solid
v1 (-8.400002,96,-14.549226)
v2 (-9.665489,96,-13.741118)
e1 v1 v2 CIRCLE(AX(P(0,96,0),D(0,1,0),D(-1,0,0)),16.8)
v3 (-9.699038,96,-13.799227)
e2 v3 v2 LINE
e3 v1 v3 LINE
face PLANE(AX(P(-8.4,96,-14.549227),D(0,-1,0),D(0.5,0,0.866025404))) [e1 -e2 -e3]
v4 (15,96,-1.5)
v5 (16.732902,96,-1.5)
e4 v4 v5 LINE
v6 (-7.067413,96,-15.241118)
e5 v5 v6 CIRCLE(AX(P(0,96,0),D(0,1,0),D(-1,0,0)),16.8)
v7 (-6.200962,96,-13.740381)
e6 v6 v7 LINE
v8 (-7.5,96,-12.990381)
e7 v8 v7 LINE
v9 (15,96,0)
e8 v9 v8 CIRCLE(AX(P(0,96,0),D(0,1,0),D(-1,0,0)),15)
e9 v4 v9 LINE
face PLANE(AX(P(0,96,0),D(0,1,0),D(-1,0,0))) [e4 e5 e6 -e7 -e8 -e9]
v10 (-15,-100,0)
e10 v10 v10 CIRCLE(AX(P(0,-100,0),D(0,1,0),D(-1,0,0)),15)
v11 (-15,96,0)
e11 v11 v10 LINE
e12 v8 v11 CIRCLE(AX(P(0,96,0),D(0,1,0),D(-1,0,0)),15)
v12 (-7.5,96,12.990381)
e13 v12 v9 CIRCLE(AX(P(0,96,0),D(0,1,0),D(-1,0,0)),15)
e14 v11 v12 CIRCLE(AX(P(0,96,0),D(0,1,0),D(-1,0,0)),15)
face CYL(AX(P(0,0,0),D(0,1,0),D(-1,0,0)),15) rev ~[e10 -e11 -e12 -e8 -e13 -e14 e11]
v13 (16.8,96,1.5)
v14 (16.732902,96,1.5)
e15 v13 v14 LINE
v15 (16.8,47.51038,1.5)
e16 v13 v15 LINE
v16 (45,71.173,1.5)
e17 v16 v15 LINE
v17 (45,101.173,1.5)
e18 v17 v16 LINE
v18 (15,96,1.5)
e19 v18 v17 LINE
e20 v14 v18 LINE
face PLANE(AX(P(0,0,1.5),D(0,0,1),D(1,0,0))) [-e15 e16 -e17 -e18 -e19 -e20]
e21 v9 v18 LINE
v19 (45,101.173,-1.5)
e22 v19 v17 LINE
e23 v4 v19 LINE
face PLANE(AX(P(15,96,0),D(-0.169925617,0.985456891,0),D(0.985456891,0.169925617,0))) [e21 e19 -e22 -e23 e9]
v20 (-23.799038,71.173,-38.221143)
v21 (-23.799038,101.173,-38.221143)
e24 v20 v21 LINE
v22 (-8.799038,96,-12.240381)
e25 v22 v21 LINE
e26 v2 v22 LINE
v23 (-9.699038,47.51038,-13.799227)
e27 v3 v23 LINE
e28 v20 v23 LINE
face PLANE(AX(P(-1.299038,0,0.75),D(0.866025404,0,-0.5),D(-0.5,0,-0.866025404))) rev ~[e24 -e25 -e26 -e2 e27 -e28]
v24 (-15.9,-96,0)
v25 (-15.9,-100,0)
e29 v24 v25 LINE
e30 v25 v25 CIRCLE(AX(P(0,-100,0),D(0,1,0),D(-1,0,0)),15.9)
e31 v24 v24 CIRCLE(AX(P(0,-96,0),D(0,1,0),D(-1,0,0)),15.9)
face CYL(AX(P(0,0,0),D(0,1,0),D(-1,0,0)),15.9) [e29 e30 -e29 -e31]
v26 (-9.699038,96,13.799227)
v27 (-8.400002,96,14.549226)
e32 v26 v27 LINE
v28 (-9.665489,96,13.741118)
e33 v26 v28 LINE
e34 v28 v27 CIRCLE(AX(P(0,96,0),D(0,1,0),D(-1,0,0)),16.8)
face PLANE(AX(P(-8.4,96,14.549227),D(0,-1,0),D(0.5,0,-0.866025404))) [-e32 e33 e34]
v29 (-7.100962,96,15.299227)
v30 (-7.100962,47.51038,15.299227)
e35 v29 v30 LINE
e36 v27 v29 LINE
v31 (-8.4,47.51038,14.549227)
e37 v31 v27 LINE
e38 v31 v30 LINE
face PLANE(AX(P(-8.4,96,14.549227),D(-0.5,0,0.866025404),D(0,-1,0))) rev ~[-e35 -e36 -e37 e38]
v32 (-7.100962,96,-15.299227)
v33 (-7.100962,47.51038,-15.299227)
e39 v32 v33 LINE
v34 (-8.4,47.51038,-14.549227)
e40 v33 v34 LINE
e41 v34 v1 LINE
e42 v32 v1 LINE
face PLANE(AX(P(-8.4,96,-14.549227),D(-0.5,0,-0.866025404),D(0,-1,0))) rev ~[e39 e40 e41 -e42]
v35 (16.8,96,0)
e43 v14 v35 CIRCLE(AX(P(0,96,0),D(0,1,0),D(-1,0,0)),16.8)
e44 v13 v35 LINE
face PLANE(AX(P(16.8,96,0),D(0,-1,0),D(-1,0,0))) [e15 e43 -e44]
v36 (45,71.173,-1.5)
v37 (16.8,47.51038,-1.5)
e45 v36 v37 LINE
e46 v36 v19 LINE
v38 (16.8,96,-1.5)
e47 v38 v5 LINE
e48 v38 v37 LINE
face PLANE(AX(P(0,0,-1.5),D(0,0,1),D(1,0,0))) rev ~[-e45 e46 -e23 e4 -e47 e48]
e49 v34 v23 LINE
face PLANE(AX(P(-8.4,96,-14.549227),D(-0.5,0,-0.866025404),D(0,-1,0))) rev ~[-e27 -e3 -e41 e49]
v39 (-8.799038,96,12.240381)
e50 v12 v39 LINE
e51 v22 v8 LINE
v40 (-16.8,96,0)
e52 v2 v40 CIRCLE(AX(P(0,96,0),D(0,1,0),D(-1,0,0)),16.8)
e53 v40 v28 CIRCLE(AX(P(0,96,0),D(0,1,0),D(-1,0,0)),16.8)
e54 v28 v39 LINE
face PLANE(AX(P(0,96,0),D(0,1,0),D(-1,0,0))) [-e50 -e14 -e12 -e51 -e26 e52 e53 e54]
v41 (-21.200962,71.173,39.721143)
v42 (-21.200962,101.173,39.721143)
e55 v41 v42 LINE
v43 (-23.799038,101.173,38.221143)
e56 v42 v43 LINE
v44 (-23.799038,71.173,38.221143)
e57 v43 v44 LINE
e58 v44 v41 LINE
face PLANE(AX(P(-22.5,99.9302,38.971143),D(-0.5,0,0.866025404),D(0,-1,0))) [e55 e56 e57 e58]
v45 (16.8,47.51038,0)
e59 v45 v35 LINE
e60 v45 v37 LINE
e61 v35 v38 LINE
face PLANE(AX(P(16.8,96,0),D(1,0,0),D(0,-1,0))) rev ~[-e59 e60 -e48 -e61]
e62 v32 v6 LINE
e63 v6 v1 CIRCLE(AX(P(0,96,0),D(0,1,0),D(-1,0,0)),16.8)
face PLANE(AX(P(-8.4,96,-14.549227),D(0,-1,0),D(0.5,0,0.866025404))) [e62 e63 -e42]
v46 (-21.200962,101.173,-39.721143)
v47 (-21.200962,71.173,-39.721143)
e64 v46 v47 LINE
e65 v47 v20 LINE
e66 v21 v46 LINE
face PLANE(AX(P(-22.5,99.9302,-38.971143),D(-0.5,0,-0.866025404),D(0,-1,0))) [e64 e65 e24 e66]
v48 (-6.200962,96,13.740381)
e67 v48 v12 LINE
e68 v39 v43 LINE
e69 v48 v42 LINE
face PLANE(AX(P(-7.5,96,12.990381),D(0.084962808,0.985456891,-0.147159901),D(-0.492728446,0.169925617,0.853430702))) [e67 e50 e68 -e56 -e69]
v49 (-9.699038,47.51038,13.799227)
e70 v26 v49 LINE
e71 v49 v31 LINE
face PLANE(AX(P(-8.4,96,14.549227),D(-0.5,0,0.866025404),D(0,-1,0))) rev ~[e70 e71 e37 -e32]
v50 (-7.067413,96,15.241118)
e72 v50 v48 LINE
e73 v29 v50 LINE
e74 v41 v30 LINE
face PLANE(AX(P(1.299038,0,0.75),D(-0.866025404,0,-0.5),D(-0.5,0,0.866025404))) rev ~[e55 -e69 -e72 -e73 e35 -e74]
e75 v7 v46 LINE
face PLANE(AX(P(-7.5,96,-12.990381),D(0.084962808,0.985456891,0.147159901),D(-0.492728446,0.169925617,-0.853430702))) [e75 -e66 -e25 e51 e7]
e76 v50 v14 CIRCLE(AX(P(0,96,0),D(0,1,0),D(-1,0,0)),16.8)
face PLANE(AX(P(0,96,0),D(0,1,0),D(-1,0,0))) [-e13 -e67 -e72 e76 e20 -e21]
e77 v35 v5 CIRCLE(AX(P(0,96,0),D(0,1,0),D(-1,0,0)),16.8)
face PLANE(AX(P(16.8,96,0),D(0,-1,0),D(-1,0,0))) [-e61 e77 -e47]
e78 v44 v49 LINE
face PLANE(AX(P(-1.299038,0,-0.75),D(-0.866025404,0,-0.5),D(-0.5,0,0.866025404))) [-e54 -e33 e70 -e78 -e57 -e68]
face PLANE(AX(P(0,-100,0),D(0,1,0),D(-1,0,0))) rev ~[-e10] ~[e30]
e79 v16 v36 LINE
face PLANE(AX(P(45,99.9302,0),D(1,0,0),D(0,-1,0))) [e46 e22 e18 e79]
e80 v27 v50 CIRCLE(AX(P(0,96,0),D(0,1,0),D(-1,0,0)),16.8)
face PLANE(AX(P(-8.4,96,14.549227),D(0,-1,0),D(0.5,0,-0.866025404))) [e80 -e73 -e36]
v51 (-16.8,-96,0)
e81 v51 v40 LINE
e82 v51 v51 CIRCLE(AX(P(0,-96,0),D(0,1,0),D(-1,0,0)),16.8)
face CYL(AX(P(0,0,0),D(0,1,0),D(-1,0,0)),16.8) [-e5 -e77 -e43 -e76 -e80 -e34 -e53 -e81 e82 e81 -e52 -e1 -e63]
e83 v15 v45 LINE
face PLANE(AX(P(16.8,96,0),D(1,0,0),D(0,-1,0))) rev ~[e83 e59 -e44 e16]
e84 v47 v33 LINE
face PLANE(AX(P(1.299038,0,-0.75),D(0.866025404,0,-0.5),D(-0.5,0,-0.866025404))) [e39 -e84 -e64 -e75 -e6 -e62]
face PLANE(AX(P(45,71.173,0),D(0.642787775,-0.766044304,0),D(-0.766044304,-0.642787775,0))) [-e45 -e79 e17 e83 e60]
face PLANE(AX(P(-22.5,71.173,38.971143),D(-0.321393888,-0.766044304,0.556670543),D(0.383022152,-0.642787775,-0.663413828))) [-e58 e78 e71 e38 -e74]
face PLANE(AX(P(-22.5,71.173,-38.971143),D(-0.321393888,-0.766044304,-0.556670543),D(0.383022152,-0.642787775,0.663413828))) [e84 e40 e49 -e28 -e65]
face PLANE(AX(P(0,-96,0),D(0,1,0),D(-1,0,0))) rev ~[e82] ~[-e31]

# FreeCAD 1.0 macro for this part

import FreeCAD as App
import Part
import Sketcher
from FreeCAD import Vector
Q = App.Units.Quantity


def add_polygon(sketch, points):
    """Adds a closed chain of lines whose ends are joined by coincident constraints."""
    first, n = sketch.GeometryCount, len(points)
    for a, b in zip(points, points[1:] + points[:1]):
        sketch.addGeometry(Part.LineSegment(App.Vector(*a, 0), App.Vector(*b, 0)), False)
    for i in range(n):
        sketch.addConstraint(Sketcher.Constraint("Coincident", first + i, 2, first + (i + 1) % n, 1))

doc = App.newDocument("Part")
params = doc.addObject("Spreadsheet::Sheet", "Params")
for row, (alias, value) in enumerate([
    ("sketch1_diameter", "30 mm"),
    ("sketch1_diameter2", "31.8 mm"),
    ("pad1_length", "96 mm"),
    ("pad1_length2", "100 mm"),
    ("sketch2_diameter", "33.6 mm"),
    ("sketch2_diameter2", "31.8 mm"),
    ("pad2_length", "96 mm"),
    ("pad2_length2", "96 mm"),
    ("sketch3_height", "30 mm"),
    ("sketch3_width", "1.8 mm"),
    ("pad3_length", "3 mm"),
], start=1):
    params.set(f"A{row}", alias)
    params.set(f"B{row}", "=" + value)
    params.setAlias(f"B{row}", alias)

body = doc.addObject("PartDesign::Body", "Body")

# Sketch on XZ plane
sketch1 = doc.addObject("Sketcher::SketchObject", "Sketch")
body.addObject(sketch1)
sketch1.AttachmentSupport = (doc.XZ_Plane, [""])
sketch1.MapMode = "FlatFace"
sketch1.addGeometry(Part.Circle(Vector(0, 0, 0), Vector(0, 0, 1), 16), False)
sketch1.addGeometry(Part.Circle(Vector(0, 0, 0), Vector(0, 0, 1), 15), False)
sketch1.addConstraint(Sketcher.Constraint("Coincident", 0, 3, -1, 1))
sketch1.addConstraint(Sketcher.Constraint("Coincident", 1, 3, -1, 1))
sketch1.addConstraint(Sketcher.Constraint("Diameter", 1, Q("30 mm")))
sketch1.addConstraint(Sketcher.Constraint("Diameter", 0, Q("31.8 mm")))
sketch1.setExpression("Constraints[2]", "Params.sketch1_diameter")
sketch1.setExpression("Constraints[3]", "Params.sketch1_diameter2")
pad1 = doc.addObject("PartDesign::Pad", "Pad")
body.addObject(pad1)
pad1.Profile = sketch1
pad1.Type = "TwoLengths"
pad1.setExpression("Length", "Params.pad1_length")
pad1.setExpression("Length2", "Params.pad1_length2")
pad1.Reversed = True

# Sketch on XZ plane
sketch2 = doc.addObject("Sketcher::SketchObject", "Sketch001")
body.addObject(sketch2)
sketch2.AttachmentSupport = (doc.XZ_Plane, [""])
sketch2.MapMode = "FlatFace"
sketch2.addGeometry(Part.Circle(Vector(0, 0, 0), Vector(0, 0, 1), 17), False)
sketch2.addGeometry(Part.Circle(Vector(0, 0, 0), Vector(0, 0, 1), 16), False)
sketch2.addConstraint(Sketcher.Constraint("Coincident", 0, 3, -1, 1))
sketch2.addConstraint(Sketcher.Constraint("Coincident", 1, 3, -1, 1))
sketch2.addConstraint(Sketcher.Constraint("Diameter", 0, Q("33.6 mm")))
sketch2.addConstraint(Sketcher.Constraint("Diameter", 1, Q("31.8 mm")))
sketch2.setExpression("Constraints[2]", "Params.sketch2_diameter")
sketch2.setExpression("Constraints[3]", "Params.sketch2_diameter2")
pad2 = doc.addObject("PartDesign::Pad", "Pad001")
body.addObject(pad2)
pad2.Profile = sketch2
pad2.Type = "TwoLengths"
pad2.setExpression("Length", "Params.pad2_length")
pad2.setExpression("Length2", "Params.pad2_length2")
pad2.Reversed = True

# Sketch on XY plane
sketch3 = doc.addObject("Sketcher::SketchObject", "Sketch002")
body.addObject(sketch3)
sketch3.AttachmentSupport = (doc.XY_Plane, [""])
sketch3.MapMode = "FlatFace"
add_polygon(sketch3, [(45, 71.2), (45, 101.2), (15, 96), (16.8, 96), (16.8, 47.5)])  # lines 0-4
sketch3.addConstraint(Sketcher.Constraint("Vertical", 0))
sketch3.addConstraint(Sketcher.Constraint("Horizontal", 2))
sketch3.addConstraint(Sketcher.Constraint("Vertical", 3))
sketch3.addConstraint(Sketcher.Constraint("DistanceY", 0, 1, 0, 2, Q("30 mm")))
sketch3.addConstraint(Sketcher.Constraint("DistanceX", 1, 2, 0, 2, Q("30 mm")))
sketch3.addConstraint(Sketcher.Constraint("Angle", 4, Q("40 deg")))
sketch3.addConstraint(Sketcher.Constraint("DistanceX", 2, 1, 2, 2, Q("1.8 mm")))
sketch3.addConstraint(Sketcher.Constraint("DistanceX", -1, 1, 0, 2, Q("45 mm")))
sketch3.addConstraint(Sketcher.Constraint("DistanceY", -1, 1, 1, 2, Q("96 mm")))
sketch3.addConstraint(Sketcher.Constraint("DistanceY", 3, 2, 3, 1, Q("48.4896 mm")))
sketch3.setExpression("Constraints[8]", "Params.sketch3_height")
sketch3.setExpression("Constraints[11]", "Params.sketch3_width")
pad3 = doc.addObject("PartDesign::Pad", "Pad002")
body.addObject(pad3)
pad3.Profile = sketch3
pad3.setExpression("Length", "Params.pad3_length")
pad3.Midplane = True
doc.recompute()

polarpattern = doc.addObject("PartDesign::PolarPattern", "PolarPattern")
body.addObject(polarpattern)
polarpattern.Originals = [pad3]
polarpattern.Axis = (doc.Y_Axis, [""])
polarpattern.Angle = 360
polarpattern.Occurrences = 3
body.Tip = polarpattern

doc.recompute()
